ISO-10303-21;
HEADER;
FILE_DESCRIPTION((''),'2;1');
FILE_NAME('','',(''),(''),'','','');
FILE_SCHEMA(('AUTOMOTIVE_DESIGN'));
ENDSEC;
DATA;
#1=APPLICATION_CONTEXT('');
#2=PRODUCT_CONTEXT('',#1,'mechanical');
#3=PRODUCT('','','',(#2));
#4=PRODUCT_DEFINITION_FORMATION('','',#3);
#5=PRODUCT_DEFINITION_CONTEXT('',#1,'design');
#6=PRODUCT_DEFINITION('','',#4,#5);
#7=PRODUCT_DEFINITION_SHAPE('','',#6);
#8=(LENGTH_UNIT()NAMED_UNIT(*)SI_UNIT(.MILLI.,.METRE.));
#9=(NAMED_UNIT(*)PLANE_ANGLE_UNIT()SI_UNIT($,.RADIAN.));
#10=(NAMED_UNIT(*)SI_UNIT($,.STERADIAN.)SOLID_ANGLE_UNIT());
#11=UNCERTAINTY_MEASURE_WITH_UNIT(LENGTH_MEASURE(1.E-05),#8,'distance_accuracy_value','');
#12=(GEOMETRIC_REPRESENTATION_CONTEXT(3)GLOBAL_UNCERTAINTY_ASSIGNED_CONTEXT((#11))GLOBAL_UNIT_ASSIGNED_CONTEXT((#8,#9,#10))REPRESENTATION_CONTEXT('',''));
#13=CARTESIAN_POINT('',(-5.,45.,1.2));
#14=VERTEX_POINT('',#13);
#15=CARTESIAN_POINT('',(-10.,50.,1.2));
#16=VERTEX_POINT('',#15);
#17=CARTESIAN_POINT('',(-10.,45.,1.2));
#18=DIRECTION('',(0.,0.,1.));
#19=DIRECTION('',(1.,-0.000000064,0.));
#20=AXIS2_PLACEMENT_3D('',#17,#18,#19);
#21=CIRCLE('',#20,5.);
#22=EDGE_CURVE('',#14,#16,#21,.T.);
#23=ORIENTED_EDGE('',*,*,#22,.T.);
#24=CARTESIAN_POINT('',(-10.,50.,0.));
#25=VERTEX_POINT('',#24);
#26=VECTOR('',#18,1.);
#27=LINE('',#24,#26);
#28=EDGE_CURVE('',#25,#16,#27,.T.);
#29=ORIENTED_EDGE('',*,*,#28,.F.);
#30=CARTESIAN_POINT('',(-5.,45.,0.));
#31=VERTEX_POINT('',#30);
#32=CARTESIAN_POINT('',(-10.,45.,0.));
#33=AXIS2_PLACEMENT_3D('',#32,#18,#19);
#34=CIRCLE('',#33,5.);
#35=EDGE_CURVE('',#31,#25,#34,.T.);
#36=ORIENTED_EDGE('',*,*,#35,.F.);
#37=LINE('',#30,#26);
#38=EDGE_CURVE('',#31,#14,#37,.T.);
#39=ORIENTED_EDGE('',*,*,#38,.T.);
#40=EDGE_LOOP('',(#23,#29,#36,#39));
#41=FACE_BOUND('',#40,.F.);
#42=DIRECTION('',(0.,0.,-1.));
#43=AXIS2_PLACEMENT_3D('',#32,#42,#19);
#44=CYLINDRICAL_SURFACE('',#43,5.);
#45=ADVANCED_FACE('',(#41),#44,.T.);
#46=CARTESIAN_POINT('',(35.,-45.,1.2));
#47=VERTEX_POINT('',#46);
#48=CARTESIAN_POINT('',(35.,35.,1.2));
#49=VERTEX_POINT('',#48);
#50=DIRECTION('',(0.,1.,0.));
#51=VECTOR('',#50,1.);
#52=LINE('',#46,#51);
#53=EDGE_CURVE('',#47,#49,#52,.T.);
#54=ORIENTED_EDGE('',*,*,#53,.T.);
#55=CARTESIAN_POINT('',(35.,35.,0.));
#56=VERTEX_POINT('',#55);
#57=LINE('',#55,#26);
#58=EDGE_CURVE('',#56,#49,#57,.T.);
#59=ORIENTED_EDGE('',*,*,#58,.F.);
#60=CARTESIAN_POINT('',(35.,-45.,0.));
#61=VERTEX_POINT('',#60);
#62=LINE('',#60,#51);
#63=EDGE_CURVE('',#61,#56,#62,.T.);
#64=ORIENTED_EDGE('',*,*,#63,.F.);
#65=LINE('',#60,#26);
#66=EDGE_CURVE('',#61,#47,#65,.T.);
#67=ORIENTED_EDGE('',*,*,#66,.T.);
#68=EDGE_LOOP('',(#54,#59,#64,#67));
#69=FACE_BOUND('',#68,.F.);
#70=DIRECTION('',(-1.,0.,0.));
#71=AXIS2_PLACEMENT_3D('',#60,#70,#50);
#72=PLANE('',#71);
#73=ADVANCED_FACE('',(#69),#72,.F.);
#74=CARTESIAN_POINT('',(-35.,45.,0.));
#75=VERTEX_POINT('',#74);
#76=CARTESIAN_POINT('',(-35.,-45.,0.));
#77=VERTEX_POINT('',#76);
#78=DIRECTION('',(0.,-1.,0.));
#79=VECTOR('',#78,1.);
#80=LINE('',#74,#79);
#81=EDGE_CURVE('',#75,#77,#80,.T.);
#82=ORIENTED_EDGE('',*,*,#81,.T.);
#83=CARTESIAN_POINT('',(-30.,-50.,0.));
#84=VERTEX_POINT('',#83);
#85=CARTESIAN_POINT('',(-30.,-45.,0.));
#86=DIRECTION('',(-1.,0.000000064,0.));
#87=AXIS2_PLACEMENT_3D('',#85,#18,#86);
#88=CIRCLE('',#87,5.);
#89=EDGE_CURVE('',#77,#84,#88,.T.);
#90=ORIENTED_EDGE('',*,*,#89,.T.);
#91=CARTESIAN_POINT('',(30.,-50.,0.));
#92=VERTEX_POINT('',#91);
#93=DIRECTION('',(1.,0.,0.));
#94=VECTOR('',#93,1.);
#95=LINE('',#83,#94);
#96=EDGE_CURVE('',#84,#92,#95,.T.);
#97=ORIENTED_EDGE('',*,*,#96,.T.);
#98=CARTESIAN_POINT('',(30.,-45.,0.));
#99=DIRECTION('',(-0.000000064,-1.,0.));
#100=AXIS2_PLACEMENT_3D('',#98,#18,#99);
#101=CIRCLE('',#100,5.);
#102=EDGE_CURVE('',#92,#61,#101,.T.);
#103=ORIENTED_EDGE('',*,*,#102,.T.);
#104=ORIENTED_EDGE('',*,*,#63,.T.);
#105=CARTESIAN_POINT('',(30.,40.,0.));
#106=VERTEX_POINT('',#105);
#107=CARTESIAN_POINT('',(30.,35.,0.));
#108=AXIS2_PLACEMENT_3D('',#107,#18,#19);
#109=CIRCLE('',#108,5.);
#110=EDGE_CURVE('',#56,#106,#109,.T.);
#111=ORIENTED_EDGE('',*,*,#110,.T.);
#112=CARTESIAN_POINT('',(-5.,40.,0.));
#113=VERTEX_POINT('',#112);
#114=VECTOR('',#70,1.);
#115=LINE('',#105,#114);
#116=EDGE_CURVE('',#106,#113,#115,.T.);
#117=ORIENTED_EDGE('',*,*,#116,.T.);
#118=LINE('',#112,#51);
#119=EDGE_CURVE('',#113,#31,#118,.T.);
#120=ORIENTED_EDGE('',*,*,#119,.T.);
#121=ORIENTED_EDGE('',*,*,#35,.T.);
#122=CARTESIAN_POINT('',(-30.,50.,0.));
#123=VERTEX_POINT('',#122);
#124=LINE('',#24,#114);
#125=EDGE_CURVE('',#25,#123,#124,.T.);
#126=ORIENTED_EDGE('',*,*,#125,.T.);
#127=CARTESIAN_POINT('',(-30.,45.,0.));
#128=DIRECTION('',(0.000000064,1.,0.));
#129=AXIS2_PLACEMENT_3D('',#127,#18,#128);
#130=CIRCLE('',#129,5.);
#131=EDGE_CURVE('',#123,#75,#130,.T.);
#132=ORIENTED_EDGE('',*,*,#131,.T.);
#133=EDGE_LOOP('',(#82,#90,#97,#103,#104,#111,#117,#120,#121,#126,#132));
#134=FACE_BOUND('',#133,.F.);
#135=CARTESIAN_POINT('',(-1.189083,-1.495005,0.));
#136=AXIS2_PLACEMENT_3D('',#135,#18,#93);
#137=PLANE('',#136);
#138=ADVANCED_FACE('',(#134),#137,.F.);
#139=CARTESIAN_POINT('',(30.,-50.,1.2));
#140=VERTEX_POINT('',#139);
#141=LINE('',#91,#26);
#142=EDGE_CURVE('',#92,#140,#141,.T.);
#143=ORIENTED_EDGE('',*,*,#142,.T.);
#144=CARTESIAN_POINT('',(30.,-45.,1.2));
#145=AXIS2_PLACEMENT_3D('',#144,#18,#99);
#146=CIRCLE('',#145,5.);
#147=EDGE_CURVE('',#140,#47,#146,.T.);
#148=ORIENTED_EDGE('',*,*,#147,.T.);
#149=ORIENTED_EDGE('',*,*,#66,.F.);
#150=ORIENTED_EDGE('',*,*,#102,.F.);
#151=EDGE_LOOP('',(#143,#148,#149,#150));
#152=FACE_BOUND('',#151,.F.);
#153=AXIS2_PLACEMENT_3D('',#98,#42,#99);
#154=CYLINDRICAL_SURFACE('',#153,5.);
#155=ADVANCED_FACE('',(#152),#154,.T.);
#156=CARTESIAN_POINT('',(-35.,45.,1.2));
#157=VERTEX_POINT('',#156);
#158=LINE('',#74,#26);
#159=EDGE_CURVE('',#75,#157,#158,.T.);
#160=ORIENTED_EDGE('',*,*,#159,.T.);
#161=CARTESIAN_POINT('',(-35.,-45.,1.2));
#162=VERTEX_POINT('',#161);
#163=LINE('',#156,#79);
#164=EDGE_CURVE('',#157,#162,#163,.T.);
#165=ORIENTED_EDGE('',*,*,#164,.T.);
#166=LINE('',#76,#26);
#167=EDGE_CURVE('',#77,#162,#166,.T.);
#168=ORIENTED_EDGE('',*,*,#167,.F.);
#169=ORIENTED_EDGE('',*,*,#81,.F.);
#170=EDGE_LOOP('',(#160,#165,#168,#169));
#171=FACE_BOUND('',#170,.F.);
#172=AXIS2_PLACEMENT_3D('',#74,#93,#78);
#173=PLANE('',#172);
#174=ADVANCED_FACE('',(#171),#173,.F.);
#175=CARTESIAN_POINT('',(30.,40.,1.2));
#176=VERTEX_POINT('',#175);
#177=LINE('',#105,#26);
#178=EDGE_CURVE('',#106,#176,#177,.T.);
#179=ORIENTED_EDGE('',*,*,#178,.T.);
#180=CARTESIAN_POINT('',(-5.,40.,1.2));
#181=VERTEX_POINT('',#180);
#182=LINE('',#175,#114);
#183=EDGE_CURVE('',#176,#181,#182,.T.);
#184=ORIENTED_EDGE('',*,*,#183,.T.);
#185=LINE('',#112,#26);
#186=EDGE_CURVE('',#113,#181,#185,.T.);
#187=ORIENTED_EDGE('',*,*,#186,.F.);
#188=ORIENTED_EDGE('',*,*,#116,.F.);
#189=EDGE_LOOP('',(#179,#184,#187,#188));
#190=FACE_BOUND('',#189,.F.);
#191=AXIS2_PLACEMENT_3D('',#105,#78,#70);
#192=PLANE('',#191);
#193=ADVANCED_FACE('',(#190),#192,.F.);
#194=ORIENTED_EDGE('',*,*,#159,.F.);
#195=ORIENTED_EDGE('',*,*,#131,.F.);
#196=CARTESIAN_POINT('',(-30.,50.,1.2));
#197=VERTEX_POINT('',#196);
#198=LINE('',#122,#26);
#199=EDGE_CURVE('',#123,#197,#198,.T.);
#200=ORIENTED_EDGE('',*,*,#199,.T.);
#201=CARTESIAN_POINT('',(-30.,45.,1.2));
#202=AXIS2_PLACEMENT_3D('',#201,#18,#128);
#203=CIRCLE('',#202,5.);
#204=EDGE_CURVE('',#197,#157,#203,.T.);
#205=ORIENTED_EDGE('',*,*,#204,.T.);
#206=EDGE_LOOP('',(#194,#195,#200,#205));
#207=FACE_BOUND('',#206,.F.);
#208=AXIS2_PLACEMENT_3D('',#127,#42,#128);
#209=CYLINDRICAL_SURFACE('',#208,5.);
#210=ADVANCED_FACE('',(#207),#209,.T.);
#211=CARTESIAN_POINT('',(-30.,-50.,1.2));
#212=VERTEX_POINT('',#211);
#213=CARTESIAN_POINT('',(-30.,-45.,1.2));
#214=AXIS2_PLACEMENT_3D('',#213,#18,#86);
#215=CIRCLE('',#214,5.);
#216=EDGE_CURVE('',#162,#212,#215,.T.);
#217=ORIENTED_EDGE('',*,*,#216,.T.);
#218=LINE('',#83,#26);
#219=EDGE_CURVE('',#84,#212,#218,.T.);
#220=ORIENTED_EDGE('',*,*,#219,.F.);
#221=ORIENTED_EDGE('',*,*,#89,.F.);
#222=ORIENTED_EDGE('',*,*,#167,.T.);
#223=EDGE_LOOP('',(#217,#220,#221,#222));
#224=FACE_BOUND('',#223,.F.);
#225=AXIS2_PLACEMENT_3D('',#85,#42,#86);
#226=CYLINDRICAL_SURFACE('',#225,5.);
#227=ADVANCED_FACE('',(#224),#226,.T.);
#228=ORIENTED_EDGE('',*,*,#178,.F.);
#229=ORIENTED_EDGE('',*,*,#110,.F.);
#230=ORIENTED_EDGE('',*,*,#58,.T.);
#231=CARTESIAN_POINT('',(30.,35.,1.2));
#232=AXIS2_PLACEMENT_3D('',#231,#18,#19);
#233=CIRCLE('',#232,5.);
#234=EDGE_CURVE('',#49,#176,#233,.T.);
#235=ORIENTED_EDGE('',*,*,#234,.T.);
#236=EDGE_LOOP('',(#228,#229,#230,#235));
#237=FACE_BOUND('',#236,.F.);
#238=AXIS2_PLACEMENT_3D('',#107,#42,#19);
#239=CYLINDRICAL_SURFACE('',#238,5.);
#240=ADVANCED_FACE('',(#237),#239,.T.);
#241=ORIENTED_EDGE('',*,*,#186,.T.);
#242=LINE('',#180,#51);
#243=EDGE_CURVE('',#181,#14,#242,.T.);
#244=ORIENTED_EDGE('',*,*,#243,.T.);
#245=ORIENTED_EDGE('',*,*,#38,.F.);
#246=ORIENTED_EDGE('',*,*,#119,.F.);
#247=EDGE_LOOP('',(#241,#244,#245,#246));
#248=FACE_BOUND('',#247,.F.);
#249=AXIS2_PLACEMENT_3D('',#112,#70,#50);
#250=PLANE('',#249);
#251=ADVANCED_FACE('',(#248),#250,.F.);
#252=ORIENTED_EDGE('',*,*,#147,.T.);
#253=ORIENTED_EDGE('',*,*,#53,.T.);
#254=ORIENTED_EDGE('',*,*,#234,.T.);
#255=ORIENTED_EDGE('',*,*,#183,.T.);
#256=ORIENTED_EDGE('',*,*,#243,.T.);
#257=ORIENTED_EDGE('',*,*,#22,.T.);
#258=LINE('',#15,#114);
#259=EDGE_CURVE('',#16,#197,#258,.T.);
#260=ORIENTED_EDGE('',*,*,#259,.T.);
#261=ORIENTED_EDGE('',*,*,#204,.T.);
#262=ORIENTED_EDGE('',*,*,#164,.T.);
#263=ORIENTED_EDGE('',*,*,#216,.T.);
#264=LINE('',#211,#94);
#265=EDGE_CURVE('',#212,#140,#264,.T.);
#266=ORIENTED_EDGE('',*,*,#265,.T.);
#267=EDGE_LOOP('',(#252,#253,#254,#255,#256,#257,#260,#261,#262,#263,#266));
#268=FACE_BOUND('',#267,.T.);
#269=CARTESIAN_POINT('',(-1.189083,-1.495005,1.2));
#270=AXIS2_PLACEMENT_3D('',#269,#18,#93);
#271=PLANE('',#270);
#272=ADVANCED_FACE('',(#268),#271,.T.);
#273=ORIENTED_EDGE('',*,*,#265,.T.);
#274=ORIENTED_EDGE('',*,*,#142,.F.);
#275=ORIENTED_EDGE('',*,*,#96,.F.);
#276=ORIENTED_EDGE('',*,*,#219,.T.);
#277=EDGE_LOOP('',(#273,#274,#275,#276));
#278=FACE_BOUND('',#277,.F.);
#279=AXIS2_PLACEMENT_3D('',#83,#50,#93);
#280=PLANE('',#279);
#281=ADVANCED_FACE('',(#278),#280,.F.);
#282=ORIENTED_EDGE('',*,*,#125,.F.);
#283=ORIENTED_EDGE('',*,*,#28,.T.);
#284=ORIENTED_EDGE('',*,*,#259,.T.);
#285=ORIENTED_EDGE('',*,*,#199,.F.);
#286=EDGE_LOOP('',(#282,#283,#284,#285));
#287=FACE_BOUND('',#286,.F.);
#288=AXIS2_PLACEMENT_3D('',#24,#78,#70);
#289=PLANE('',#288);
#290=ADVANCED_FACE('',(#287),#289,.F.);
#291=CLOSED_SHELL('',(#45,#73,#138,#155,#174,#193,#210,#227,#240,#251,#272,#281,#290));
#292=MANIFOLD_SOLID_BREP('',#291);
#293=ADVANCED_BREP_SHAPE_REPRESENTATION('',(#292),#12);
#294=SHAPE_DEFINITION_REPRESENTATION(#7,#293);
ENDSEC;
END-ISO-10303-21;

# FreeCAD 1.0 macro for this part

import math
import FreeCAD as App
import Part
import Sketcher
from FreeCAD import Vector
Q = App.Units.Quantity

doc = App.newDocument("Part")
body = doc.addObject("PartDesign::Body", "Body")

sketch1 = body.newObject("Sketcher::SketchObject", "Sketch")
sketch1.AttachmentSupport = (doc.getObject("XY_Plane"), [""])
sketch1.MapMode = "FlatFace"
sketch1.addGeometry(Part.LineSegment(Vector(-30, -50, 0), Vector(30, -50, 0)), False)
sketch1.addGeometry(Part.ArcOfCircle(Part.Circle(Vector(30, -45, 0), Vector(0, 0, 1), 5), math.radians(-90.000004), math.radians(0.000004)), False)
sketch1.addGeometry(Part.LineSegment(Vector(35, -45, 0), Vector(35, 35, 0)), False)
sketch1.addGeometry(Part.ArcOfCircle(Part.Circle(Vector(30, 35, 0), Vector(0, 0, 1), 5), math.radians(-0.000004), math.radians(90.000004)), False)
sketch1.addGeometry(Part.LineSegment(Vector(30, 40, 0), Vector(-5, 40, 0)), False)
sketch1.addGeometry(Part.LineSegment(Vector(-5, 40, 0), Vector(-5, 45, 0)), False)
sketch1.addGeometry(Part.ArcOfCircle(Part.Circle(Vector(-10, 45, 0), Vector(0, 0, 1), 5), math.radians(-0.000004), math.radians(90.000004)), False)
sketch1.addGeometry(Part.LineSegment(Vector(-10, 50, 0), Vector(-30, 50, 0)), False)
sketch1.addGeometry(Part.ArcOfCircle(Part.Circle(Vector(-30, 45, 0), Vector(0, 0, 1), 5), math.radians(89.999996), math.radians(180.000004)), False)
sketch1.addGeometry(Part.LineSegment(Vector(-35, 45, 0), Vector(-35, -45, 0)), False)
sketch1.addGeometry(Part.ArcOfCircle(Part.Circle(Vector(-30, -45, 0), Vector(0, 0, 1), 5), math.radians(179.999996), math.radians(270.000004)), False)
sketch1.addConstraint(Sketcher.Constraint("Tangent", 0, 2, 1, 1))
sketch1.addConstraint(Sketcher.Constraint("Tangent", 1, 2, 2, 1))
sketch1.addConstraint(Sketcher.Constraint("Tangent", 2, 2, 3, 1))
sketch1.addConstraint(Sketcher.Constraint("Tangent", 3, 2, 4, 1))
sketch1.addConstraint(Sketcher.Constraint("Coincident", 4, 2, 5, 1))
sketch1.addConstraint(Sketcher.Constraint("Tangent", 5, 2, 6, 1))
sketch1.addConstraint(Sketcher.Constraint("Tangent", 6, 2, 7, 1))
sketch1.addConstraint(Sketcher.Constraint("Tangent", 7, 2, 8, 1))
sketch1.addConstraint(Sketcher.Constraint("Tangent", 8, 2, 9, 1))
sketch1.addConstraint(Sketcher.Constraint("Tangent", 9, 2, 10, 1))
sketch1.addConstraint(Sketcher.Constraint("Tangent", 10, 2, 0, 1))
sketch1.addConstraint(Sketcher.Constraint("Horizontal", 0))
sketch1.addConstraint(Sketcher.Constraint("Vertical", 2))
sketch1.addConstraint(Sketcher.Constraint("Horizontal", 4))
sketch1.addConstraint(Sketcher.Constraint("Vertical", 5))
sketch1.addConstraint(Sketcher.Constraint("Horizontal", 7))
sketch1.addConstraint(Sketcher.Constraint("Vertical", 9))
sketch1.addConstraint(Sketcher.Constraint("Equal", 1, 3))
sketch1.addConstraint(Sketcher.Constraint("Equal", 3, 6))
sketch1.addConstraint(Sketcher.Constraint("Equal", 6, 8))
sketch1.addConstraint(Sketcher.Constraint("Equal", 8, 10))
sketch1.addConstraint(Sketcher.Constraint("Symmetric", 1, 3, 8, 3, -1, 1))
sketch1.addConstraint(Sketcher.Constraint("Radius", 1, Q("5 mm")))
sketch1.addConstraint(Sketcher.Constraint("DistanceX", 0, 1, 0, 2, Q("60 mm")))
sketch1.addConstraint(Sketcher.Constraint("DistanceX", 4, 2, 4, 1, Q("35 mm")))
sketch1.addConstraint(Sketcher.Constraint("DistanceY", 2, 1, 2, 2, Q("80 mm")))
sketch1.addConstraint(Sketcher.Constraint("DistanceY", 5, 1, 5, 2, Q("5 mm")))
pad1 = body.newObject("PartDesign::Pad", "Pad")
pad1.Profile = sketch1
pad1.Length = 1.2

doc.recompute()
